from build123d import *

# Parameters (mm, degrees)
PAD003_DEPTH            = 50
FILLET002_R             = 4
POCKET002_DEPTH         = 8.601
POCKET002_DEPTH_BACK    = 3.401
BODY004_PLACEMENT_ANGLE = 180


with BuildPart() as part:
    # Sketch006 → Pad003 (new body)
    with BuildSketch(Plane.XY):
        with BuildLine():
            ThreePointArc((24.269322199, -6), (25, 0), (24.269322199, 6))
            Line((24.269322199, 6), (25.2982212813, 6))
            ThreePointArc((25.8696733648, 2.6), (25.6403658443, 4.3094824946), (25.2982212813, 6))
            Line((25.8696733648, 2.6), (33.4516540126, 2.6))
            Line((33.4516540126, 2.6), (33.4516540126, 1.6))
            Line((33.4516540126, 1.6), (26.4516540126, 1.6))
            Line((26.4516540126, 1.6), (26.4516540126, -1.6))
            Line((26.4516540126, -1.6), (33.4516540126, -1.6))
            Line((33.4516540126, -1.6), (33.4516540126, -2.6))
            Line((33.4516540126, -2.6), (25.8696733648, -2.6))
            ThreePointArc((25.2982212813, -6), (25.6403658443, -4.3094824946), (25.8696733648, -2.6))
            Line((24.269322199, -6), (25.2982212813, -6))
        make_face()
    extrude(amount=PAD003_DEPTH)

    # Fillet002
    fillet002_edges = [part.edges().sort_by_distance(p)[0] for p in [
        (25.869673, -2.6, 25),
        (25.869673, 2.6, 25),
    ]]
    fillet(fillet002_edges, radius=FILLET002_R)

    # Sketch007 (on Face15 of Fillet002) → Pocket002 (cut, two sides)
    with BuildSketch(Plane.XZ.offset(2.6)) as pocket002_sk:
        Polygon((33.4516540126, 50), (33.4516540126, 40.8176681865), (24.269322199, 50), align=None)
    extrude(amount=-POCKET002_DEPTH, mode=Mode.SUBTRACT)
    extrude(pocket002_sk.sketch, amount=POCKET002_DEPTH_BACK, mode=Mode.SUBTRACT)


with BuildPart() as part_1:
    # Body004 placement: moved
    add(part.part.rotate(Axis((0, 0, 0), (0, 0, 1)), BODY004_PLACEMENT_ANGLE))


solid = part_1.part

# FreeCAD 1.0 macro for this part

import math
import FreeCAD as App
import Part
import Sketcher
from FreeCAD import Vector


def edges_at(feature, points):
    """Names of the edges that pass closest to the given points."""
    edges = feature.Shape.Edges
    near = lambda p: min(range(len(edges)), key=lambda i: edges[i].distToShape(Part.Vertex(*p))[0])
    return sorted({f"Edge{near(p) + 1}" for p in points})

doc = App.newDocument("Part")
params = doc.addObject("Spreadsheet::Sheet", "Params")
for row, (alias, value) in enumerate([
    ("sketch1_radius", "25 mm"),
    ("sketch1_radius2", "26 mm"),
    ("sketch1_width", "7 mm"),
    ("sketch1_height", "1 mm"),
    ("sketch1_height2", "3.2 mm"),
    ("pad1_length", "50 mm"),
    ("fillet_radius", "4 mm"),
], start=1):
    params.set(f"A{row}", alias)
    params.set(f"B{row}", "=" + value)
    params.setAlias(f"B{row}", alias)

body = doc.addObject("PartDesign::Body", "Body")

sketch1 = body.newObject("Sketcher::SketchObject", "Sketch")
sketch1.AttachmentSupport = (doc.getObject("XY_Plane"), [""])
sketch1.MapMode = "FlatFace"
sketch1.addGeometry([
    Part.ArcOfCircle(Part.Circle(Vector(0, 0, 0), Vector(0, 0, 1), 25), math.radians(-14), math.radians(14)),
    Part.LineSegment(Vector(24.3, -6, 0), Vector(25.3, -6, 0)),
    Part.ArcOfCircle(Part.Circle(Vector(0, 0, 0), Vector(0, 0, 1), 26), math.radians(-13.34), math.radians(-5.74)),
    Part.LineSegment(Vector(25.9, -2.6, 0), Vector(33.5, -2.6, 0)),
    Part.LineSegment(Vector(33.5, -2.6, 0), Vector(33.5, -1.6, 0)),
    Part.LineSegment(Vector(33.5, -1.6, 0), Vector(26.5, -1.6, 0)),
    Part.LineSegment(Vector(26.5, -1.6, 0), Vector(26.5, 1.6, 0)),
    Part.LineSegment(Vector(26.5, 1.6, 0), Vector(33.5, 1.6, 0)),
    Part.LineSegment(Vector(33.5, 1.6, 0), Vector(33.5, 2.6, 0)),
    Part.LineSegment(Vector(33.5, 2.6, 0), Vector(25.9, 2.6, 0)),
    Part.ArcOfCircle(Part.Circle(Vector(0, 0, 0), Vector(0, 0, 1), 26), math.radians(5.74), math.radians(13.34)),
    Part.LineSegment(Vector(25.3, 6, 0), Vector(24.3, 6, 0)),
], False)
sketch1.addConstraint([
    Sketcher.Constraint("Coincident", 0, 1, 1, 1),
    Sketcher.Constraint("Coincident", 1, 2, 2, 1),
    Sketcher.Constraint("Coincident", 2, 2, 3, 1),
    Sketcher.Constraint("Coincident", 3, 2, 4, 1),
    Sketcher.Constraint("Coincident", 4, 2, 5, 1),
    Sketcher.Constraint("Coincident", 5, 2, 6, 1),
    Sketcher.Constraint("Coincident", 6, 2, 7, 1),
    Sketcher.Constraint("Coincident", 7, 2, 8, 1),
    Sketcher.Constraint("Coincident", 8, 2, 9, 1),
    Sketcher.Constraint("Coincident", 9, 2, 10, 1),
    Sketcher.Constraint("Coincident", 10, 2, 11, 1),
    Sketcher.Constraint("Coincident", 11, 2, 0, 2),
    Sketcher.Constraint("Horizontal", 1),
    Sketcher.Constraint("Horizontal", 3),
    Sketcher.Constraint("Vertical", 4),
    Sketcher.Constraint("Horizontal", 5),
    Sketcher.Constraint("Vertical", 6),
    Sketcher.Constraint("Horizontal", 7),
    Sketcher.Constraint("Vertical", 8),
    Sketcher.Constraint("Horizontal", 9),
    Sketcher.Constraint("Horizontal", 11),
    Sketcher.Constraint("Coincident", 0, 3, -1, 1),
    Sketcher.Constraint("Coincident", 2, 3, -1, 1),
    Sketcher.Constraint("Coincident", 10, 3, -1, 1),
    Sketcher.Constraint("Equal", 2, 10),
    Sketcher.Constraint("Symmetric", 4, 2, 7, 2, -1),
    Sketcher.Constraint("Vertical", 2, 2, 9, 2),
    Sketcher.Constraint("Vertical", 1, 2, 10, 2),
    Sketcher.Constraint("Radius", 0, 25.0),
    Sketcher.Constraint("Radius", 2, 26.0),
    Sketcher.Constraint("DistanceX", 5, 2, 5, 1, 7.0),
    Sketcher.Constraint("DistanceY", 4, 1, 4, 2, 1.0),
    Sketcher.Constraint("DistanceY", 6, 1, 6, 2, 3.2),
    Sketcher.Constraint("DistanceY", 0, 1, -1, 1, 6.0),
    Sketcher.Constraint("DistanceX", 3, 1, 3, 2, 7.581981),
])
sketch1.setExpression("Constraints[28]", "Params.sketch1_radius")
sketch1.setExpression("Constraints[29]", "Params.sketch1_radius2")
sketch1.setExpression("Constraints[30]", "Params.sketch1_width")
sketch1.setExpression("Constraints[31]", "Params.sketch1_height")
sketch1.setExpression("Constraints[32]", "Params.sketch1_height2")
pad1 = body.newObject("PartDesign::Pad", "Pad")
pad1.Profile = sketch1
pad1.setExpression("Length", "Params.pad1_length")
doc.recompute()

fillet = body.newObject("PartDesign::Fillet", "Fillet")
fillet.Base = (pad1, edges_at(pad1, [(25.87, -2.6, 25), (25.87, 2.6, 25)]))
fillet.setExpression("Radius", "Params.fillet_radius")

sketch2 = body.newObject("Sketcher::SketchObject", "Sketch001")
sketch2.AttachmentSupport = (doc.getObject("XZ_Plane"), [""])
sketch2.MapMode = "FlatFace"
sketch2.AttachmentOffset = App.Placement(Vector(0, 0, 2.6), App.Rotation())
sketch2.addGeometry([
    Part.LineSegment(Vector(33, 41, 0), Vector(33, 50, 0)),
    Part.LineSegment(Vector(33, 50, 0), Vector(24, 50, 0)),
    Part.LineSegment(Vector(24, 50, 0), Vector(33, 41, 0)),
], False)
sketch2.addConstraint([
    Sketcher.Constraint("Coincident", 0, 2, 1, 1),
    Sketcher.Constraint("Coincident", 1, 2, 2, 1),
    Sketcher.Constraint("Coincident", 2, 2, 0, 1),
    Sketcher.Constraint("Vertical", 0),
    Sketcher.Constraint("Horizontal", 1),
    Sketcher.Constraint("Equal", 1, 0),
    Sketcher.Constraint("DistanceY", -1, 1, 0, 2, 50.0),
    Sketcher.Constraint("DistanceX", 1, 2, 1, 1, 9.182332),
    Sketcher.Constraint("DistanceX", -1, 1, 0, 2, 33.451654),
])
pocket1 = body.newObject("PartDesign::Pocket", "Pocket")
pocket1.Profile = sketch2
pocket1.Type = "ThroughAll"
pocket1.Midplane = True
body2 = doc.addObject("PartDesign::Body", "Body001")
doc.recompute()

body.Placement = App.Placement(Vector(0, 0, 0), App.Rotation(Vector(0, 0, 1), 180))
boolean = body2.newObject("PartDesign::Boolean", "Boolean")
boolean.Type = "Fuse"
boolean.addObjects([body])

doc.recompute()
